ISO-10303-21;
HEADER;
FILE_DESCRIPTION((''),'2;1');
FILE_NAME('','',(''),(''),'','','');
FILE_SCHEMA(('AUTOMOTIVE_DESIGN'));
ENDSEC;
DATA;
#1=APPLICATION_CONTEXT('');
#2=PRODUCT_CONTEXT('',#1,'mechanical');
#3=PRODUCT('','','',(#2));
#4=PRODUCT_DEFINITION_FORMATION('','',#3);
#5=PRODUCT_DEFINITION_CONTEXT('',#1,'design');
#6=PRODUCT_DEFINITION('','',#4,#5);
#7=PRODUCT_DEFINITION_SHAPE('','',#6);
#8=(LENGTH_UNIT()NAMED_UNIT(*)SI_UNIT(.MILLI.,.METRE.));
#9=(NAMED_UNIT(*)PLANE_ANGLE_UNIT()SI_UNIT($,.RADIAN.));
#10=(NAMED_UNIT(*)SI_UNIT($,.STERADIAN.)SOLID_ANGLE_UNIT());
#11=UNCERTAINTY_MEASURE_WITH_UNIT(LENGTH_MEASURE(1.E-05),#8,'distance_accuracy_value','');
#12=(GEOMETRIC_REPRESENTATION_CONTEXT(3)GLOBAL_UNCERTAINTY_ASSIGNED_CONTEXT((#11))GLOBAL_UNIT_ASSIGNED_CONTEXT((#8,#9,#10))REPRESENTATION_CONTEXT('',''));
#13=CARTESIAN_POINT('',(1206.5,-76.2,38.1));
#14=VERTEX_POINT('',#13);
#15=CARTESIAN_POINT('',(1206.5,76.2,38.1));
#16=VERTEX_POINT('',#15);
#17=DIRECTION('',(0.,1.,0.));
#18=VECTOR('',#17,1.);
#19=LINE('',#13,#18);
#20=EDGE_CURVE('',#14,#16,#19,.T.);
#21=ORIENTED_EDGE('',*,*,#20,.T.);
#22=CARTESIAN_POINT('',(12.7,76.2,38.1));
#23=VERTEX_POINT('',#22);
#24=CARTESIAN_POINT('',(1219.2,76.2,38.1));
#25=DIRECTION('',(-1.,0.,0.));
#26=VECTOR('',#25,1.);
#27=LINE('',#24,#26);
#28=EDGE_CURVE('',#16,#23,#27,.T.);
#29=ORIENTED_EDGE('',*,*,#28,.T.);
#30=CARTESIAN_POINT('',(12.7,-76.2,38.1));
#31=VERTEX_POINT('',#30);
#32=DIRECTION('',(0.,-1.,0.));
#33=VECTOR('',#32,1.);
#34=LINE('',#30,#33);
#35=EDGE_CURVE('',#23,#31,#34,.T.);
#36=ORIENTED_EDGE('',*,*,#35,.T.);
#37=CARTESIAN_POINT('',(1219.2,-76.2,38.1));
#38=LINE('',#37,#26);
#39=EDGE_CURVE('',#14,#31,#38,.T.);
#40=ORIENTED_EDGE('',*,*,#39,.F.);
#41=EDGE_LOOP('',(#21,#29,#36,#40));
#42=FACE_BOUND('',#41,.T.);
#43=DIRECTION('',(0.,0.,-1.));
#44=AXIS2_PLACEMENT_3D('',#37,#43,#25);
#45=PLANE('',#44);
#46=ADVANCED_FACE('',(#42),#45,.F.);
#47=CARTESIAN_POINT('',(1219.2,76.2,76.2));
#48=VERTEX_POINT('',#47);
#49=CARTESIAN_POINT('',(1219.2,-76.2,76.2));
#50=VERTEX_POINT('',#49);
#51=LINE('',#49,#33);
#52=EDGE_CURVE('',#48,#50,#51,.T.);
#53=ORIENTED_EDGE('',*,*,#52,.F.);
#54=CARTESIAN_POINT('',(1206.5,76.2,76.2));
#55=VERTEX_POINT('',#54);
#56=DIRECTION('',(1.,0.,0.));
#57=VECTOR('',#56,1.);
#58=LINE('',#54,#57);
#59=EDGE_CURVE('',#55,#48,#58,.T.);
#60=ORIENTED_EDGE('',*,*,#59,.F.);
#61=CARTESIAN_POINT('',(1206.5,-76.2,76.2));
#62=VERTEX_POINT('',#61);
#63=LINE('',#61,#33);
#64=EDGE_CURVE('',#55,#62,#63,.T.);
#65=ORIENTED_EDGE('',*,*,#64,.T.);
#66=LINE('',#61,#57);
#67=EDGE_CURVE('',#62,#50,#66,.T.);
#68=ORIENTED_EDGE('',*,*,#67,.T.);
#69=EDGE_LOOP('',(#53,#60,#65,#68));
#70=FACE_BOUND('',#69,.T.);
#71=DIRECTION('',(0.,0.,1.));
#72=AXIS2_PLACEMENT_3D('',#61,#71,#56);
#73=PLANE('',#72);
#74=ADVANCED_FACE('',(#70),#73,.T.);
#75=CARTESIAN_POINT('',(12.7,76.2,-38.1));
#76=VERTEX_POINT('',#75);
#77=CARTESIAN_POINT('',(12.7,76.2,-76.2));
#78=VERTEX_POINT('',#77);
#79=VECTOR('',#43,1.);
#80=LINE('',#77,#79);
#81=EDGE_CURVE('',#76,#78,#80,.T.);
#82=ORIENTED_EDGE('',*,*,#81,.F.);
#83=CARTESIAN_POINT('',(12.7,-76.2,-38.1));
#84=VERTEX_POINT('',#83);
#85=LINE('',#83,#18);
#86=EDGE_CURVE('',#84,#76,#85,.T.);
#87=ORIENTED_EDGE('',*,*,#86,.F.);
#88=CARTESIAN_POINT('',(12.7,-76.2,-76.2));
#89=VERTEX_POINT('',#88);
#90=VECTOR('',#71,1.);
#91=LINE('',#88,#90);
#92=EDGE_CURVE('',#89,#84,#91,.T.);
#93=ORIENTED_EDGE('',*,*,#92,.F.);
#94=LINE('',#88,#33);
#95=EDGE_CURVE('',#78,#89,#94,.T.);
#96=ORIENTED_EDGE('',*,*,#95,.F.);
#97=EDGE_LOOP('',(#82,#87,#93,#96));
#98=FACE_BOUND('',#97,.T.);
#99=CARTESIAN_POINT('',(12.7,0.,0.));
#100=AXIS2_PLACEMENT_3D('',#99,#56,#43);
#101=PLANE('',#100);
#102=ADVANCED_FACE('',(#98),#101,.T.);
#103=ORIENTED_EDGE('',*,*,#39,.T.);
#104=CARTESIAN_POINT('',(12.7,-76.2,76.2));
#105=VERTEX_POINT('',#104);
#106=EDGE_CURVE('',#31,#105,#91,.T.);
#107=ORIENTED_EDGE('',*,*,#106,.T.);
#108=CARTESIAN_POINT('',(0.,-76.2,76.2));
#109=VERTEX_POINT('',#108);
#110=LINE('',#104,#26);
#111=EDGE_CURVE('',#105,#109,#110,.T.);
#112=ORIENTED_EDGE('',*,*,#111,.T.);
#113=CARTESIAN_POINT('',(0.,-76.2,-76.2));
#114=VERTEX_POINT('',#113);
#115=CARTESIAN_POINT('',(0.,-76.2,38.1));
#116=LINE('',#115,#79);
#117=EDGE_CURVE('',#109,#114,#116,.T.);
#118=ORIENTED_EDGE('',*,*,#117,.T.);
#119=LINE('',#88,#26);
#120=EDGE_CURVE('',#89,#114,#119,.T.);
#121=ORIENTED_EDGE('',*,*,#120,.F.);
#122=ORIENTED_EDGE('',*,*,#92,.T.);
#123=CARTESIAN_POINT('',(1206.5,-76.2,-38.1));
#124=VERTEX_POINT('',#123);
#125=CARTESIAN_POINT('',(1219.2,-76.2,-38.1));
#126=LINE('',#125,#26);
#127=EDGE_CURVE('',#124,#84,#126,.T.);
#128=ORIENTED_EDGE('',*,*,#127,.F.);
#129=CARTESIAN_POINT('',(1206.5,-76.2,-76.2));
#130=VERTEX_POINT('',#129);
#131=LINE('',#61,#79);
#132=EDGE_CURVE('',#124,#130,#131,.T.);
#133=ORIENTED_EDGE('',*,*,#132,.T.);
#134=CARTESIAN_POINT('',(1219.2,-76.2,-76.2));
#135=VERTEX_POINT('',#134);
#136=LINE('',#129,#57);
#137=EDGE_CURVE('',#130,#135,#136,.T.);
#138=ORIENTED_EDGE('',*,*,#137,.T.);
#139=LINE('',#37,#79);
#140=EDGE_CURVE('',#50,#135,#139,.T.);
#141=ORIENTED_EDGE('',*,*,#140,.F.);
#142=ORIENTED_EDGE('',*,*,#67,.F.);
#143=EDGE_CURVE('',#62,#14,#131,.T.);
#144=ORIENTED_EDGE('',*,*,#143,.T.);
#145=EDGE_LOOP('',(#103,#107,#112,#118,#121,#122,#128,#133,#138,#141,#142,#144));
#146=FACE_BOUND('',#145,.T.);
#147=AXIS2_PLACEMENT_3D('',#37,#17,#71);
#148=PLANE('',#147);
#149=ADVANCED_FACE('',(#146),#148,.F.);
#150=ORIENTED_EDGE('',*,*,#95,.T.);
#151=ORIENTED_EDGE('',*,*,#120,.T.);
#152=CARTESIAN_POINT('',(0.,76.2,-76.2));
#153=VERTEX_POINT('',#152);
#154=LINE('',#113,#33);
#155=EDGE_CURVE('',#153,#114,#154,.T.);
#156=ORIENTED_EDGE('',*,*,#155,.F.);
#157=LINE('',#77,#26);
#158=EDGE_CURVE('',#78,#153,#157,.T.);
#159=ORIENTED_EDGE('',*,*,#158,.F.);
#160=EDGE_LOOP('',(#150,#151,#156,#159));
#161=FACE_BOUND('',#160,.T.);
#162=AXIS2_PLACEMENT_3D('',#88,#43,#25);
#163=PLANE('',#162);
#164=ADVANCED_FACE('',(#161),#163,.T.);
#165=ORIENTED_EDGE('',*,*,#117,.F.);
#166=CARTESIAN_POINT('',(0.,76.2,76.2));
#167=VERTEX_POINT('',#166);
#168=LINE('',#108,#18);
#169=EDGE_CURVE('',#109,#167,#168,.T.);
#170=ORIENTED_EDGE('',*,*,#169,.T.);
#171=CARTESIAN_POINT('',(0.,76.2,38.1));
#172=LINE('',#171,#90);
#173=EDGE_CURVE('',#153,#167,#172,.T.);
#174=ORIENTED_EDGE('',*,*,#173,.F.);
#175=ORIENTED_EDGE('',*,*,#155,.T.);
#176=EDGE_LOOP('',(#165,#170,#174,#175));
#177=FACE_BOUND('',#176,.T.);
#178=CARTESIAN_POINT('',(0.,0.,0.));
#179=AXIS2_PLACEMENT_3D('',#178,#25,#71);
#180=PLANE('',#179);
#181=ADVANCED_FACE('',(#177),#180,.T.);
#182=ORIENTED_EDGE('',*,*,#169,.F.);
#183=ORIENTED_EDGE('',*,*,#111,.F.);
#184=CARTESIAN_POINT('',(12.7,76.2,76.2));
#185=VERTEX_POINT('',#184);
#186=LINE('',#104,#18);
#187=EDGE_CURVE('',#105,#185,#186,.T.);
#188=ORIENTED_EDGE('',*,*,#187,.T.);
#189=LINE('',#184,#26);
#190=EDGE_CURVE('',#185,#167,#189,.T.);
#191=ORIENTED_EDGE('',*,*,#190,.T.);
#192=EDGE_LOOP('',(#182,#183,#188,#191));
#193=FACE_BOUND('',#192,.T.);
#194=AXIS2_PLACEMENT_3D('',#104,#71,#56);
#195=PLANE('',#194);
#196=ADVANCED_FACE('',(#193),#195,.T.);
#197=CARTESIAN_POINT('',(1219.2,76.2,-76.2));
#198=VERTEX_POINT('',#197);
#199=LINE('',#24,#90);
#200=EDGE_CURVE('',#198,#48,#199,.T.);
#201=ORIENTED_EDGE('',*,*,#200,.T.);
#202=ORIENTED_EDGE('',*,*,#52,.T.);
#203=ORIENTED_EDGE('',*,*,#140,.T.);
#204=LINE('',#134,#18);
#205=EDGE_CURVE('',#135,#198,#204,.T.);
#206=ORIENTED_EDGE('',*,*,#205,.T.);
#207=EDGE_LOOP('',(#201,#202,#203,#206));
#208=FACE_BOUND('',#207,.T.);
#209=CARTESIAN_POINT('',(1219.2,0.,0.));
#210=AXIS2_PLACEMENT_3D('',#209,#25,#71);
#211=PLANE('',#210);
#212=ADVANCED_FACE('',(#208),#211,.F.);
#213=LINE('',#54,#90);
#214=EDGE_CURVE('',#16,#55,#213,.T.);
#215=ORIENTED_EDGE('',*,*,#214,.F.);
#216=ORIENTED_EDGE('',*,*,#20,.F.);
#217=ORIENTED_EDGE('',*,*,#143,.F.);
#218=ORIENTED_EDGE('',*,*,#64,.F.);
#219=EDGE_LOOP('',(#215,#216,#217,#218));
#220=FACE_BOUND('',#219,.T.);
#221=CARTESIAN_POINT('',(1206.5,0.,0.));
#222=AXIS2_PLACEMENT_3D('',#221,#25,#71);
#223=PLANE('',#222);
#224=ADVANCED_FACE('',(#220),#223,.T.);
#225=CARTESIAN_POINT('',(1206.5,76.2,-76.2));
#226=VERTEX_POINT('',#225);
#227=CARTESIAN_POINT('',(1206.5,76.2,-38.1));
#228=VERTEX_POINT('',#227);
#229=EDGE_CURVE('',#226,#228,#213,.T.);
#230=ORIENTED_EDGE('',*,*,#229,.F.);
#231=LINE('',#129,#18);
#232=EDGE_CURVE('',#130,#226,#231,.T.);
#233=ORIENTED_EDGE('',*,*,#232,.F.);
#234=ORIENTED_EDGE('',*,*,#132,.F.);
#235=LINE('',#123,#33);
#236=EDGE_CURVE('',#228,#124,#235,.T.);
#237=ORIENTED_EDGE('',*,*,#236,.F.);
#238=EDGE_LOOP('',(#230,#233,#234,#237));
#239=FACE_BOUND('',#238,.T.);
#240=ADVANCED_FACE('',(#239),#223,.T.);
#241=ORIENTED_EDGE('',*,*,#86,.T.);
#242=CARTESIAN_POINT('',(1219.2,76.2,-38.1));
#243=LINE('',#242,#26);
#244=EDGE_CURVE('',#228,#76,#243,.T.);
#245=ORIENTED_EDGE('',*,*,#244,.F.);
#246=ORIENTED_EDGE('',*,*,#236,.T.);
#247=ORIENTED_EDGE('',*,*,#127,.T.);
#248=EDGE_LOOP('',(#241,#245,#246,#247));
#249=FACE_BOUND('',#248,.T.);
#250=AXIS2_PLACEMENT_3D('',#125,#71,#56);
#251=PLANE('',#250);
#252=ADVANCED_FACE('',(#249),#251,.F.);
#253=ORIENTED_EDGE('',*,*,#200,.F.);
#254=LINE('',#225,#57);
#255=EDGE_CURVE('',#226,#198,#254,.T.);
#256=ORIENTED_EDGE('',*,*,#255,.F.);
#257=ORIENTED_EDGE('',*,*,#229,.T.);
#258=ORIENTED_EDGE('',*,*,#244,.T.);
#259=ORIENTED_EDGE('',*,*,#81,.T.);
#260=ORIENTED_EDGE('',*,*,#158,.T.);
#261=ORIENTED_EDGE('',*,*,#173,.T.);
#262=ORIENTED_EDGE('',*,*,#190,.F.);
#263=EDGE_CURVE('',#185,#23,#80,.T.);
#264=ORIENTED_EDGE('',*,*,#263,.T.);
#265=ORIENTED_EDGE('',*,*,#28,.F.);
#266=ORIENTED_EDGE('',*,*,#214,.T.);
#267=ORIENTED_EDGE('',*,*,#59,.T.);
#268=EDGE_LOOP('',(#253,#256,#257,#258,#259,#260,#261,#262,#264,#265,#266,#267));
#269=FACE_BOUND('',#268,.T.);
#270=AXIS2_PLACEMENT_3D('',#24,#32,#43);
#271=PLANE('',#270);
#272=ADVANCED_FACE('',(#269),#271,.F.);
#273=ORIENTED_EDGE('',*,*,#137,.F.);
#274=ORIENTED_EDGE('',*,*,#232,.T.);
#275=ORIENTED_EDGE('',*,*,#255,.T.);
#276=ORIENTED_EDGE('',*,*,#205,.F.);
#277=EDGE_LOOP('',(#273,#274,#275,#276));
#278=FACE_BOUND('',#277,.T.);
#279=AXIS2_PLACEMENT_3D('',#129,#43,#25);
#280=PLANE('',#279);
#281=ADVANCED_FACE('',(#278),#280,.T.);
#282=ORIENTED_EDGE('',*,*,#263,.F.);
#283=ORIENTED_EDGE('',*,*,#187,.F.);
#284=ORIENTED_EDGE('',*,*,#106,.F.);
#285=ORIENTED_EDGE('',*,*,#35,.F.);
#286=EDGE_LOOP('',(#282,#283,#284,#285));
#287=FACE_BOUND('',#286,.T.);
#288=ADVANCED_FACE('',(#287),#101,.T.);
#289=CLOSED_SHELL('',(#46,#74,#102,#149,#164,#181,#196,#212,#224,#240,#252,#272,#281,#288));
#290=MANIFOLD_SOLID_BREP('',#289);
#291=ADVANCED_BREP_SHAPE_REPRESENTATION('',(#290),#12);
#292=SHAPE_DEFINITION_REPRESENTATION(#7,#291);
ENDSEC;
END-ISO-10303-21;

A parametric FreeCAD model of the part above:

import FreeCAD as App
import Part
import Sketcher
Q = App.Units.Quantity

doc = App.newDocument("Part")
body = doc.addObject("PartDesign::Body", "Body")

# Sketch on YZ plane
sketch1 = body.newObject("Sketcher::SketchObject", "Sketch")
sketch1.AttachmentSupport = (doc.getObject("YZ_Plane"), [""])
sketch1.MapMode = "FlatFace"
sketch1.addGeometry(Part.LineSegment(App.Vector(76, 38, 0), App.Vector(-76, 38, 0)), False)
sketch1.addGeometry(Part.LineSegment(App.Vector(-76, 38, 0), App.Vector(-76, -38, 0)), False)
sketch1.addGeometry(Part.LineSegment(App.Vector(-76, -38, 0), App.Vector(76, -38, 0)), False)
sketch1.addGeometry(Part.LineSegment(App.Vector(76, -38, 0), App.Vector(76, 38, 0)), False)
sketch1.addConstraint(Sketcher.Constraint("Coincident", 0, 2, 1, 1))
sketch1.addConstraint(Sketcher.Constraint("Coincident", 1, 2, 2, 1))
sketch1.addConstraint(Sketcher.Constraint("Coincident", 2, 2, 3, 1))
sketch1.addConstraint(Sketcher.Constraint("Coincident", 3, 2, 0, 1))
sketch1.addConstraint(Sketcher.Constraint("Horizontal", 0))
sketch1.addConstraint(Sketcher.Constraint("Vertical", 1))
sketch1.addConstraint(Sketcher.Constraint("Horizontal", 2))
sketch1.addConstraint(Sketcher.Constraint("Vertical", 3))
sketch1.addConstraint(Sketcher.Constraint("Symmetric", 0, 2, 2, 2, -1, 1))
sketch1.addConstraint(Sketcher.Constraint("DistanceX", 0, 2, 0, 1, Q("6 in")))
sketch1.addConstraint(Sketcher.Constraint("DistanceY", 1, 2, 1, 1, Q("3 in")))
pad1 = body.newObject("PartDesign::Pad", "Pad")
pad1.Profile = sketch1
pad1.Length = Q("48 in")

# Sketch on YZ plane
sketch2 = body.newObject("Sketcher::SketchObject", "Sketch001")
sketch2.AttachmentSupport = (doc.getObject("YZ_Plane"), [""])
sketch2.MapMode = "FlatFace"
sketch2.AttachmentOffset = App.Placement(App.Vector(0, 0, 48 * 25.4), App.Rotation())
sketch2.addGeometry(Part.LineSegment(App.Vector(76, 76, 0), App.Vector(-76, 76, 0)), False)
sketch2.addGeometry(Part.LineSegment(App.Vector(-76, 76, 0), App.Vector(-76, -76, 0)), False)
sketch2.addGeometry(Part.LineSegment(App.Vector(-76, -76, 0), App.Vector(76, -76, 0)), False)
sketch2.addGeometry(Part.LineSegment(App.Vector(76, -76, 0), App.Vector(76, 76, 0)), False)
sketch2.addConstraint(Sketcher.Constraint("Coincident", 0, 2, 1, 1))
sketch2.addConstraint(Sketcher.Constraint("Coincident", 1, 2, 2, 1))
sketch2.addConstraint(Sketcher.Constraint("Coincident", 2, 2, 3, 1))
sketch2.addConstraint(Sketcher.Constraint("Coincident", 3, 2, 0, 1))
sketch2.addConstraint(Sketcher.Constraint("Horizontal", 0))
sketch2.addConstraint(Sketcher.Constraint("Vertical", 1))
sketch2.addConstraint(Sketcher.Constraint("Horizontal", 2))
sketch2.addConstraint(Sketcher.Constraint("Vertical", 3))
sketch2.addConstraint(Sketcher.Constraint("Symmetric", 0, 2, 2, 2, -1, 1))
sketch2.addConstraint(Sketcher.Constraint("Equal", 2, 1))
sketch2.addConstraint(Sketcher.Constraint("DistanceX", 0, 2, 0, 1, Q("6 in")))
pad2 = body.newObject("PartDesign::Pad", "Pad001")
pad2.Profile = sketch2
pad2.Length = Q("0.5 in")
pad2.Reversed = True

# Sketch on YZ plane
sketch3 = body.newObject("Sketcher::SketchObject", "Sketch002")
sketch3.AttachmentSupport = (doc.getObject("YZ_Plane"), [""])
sketch3.MapMode = "FlatFace"
sketch3.addGeometry(Part.LineSegment(App.Vector(76, -76, 0), App.Vector(-76, -76, 0)), False)
sketch3.addGeometry(Part.LineSegment(App.Vector(-76, -76, 0), App.Vector(-76, 76, 0)), False)
sketch3.addGeometry(Part.LineSegment(App.Vector(-76, 76, 0), App.Vector(76, 76, 0)), False)
sketch3.addGeometry(Part.LineSegment(App.Vector(76, 76, 0), App.Vector(76, -76, 0)), False)
sketch3.addConstraint(Sketcher.Constraint("Coincident", 0, 2, 1, 1))
sketch3.addConstraint(Sketcher.Constraint("Coincident", 1, 2, 2, 1))
sketch3.addConstraint(Sketcher.Constraint("Coincident", 2, 2, 3, 1))
sketch3.addConstraint(Sketcher.Constraint("Coincident", 3, 2, 0, 1))
sketch3.addConstraint(Sketcher.Constraint("Horizontal", 0))
sketch3.addConstraint(Sketcher.Constraint("Vertical", 1))
sketch3.addConstraint(Sketcher.Constraint("Horizontal", 2))
sketch3.addConstraint(Sketcher.Constraint("Vertical", 3))
sketch3.addConstraint(Sketcher.Constraint("Symmetric", 0, 2, 2, 2, -1, 1))
sketch3.addConstraint(Sketcher.Constraint("Equal", 2, 1))
sketch3.addConstraint(Sketcher.Constraint("DistanceX", 0, 2, 0, 1, Q("6 in")))
pad3 = body.newObject("PartDesign::Pad", "Pad002")
pad3.Profile = sketch3
pad3.Length = Q("0.5 in")

doc.recompute()
